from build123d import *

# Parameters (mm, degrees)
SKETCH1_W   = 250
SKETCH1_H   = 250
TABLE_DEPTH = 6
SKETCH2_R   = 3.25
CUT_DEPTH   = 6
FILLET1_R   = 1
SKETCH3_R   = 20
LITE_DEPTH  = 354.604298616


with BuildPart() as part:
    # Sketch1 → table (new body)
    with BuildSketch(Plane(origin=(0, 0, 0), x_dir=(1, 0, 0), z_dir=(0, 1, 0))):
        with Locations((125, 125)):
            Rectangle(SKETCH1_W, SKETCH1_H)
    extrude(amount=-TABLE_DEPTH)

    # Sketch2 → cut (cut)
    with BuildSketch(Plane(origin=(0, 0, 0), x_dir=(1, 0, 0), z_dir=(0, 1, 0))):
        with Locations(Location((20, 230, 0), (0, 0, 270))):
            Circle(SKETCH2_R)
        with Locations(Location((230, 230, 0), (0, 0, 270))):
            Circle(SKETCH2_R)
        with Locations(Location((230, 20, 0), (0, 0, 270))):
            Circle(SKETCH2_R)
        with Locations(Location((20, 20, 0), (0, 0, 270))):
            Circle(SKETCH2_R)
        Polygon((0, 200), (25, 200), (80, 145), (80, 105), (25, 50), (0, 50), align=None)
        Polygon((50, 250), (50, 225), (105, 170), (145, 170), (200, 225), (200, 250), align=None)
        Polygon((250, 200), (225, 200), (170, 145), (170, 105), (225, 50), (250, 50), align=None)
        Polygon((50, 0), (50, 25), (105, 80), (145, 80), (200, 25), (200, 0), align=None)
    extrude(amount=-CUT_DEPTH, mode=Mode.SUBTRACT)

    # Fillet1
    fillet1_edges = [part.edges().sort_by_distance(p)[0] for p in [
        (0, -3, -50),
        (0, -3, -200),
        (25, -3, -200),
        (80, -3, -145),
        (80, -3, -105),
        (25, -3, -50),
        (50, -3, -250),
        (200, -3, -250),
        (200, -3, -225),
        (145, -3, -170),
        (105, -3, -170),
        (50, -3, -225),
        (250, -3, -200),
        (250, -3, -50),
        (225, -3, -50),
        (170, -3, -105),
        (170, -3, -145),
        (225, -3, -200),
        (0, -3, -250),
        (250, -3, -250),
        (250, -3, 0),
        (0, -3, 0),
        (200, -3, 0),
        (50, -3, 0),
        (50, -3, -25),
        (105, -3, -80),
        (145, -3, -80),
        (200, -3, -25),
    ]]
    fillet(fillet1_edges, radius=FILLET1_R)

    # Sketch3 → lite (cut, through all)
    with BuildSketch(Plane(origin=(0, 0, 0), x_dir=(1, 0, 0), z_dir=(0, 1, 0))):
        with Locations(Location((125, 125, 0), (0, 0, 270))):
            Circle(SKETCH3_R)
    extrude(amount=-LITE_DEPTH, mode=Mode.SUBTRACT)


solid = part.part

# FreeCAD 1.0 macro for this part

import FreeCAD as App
import Part
import Sketcher
from FreeCAD import Vector
Q = App.Units.Quantity


def edges_at(feature, points):
    """Names of the edges that pass closest to the given points."""
    edges = feature.Shape.Edges
    near = lambda p: min(range(len(edges)), key=lambda i: edges[i].distToShape(Part.Vertex(*p))[0])
    return sorted({f"Edge{near(p) + 1}" for p in points})

doc = App.newDocument("Part")
body = doc.addObject("PartDesign::Body", "Body")

sketch1 = body.newObject("Sketcher::SketchObject", "Sketch")
sketch1.AttachmentSupport = (doc.getObject("XZ_Plane"), [""])
sketch1.MapMode = "FlatFace"
sketch1.addGeometry([
    Part.LineSegment(Vector(0, -250, 0), Vector(0, 0, 0)),
    Part.LineSegment(Vector(0, 0, 0), Vector(250, 0, 0)),
    Part.LineSegment(Vector(250, 0, 0), Vector(250, -250, 0)),
    Part.LineSegment(Vector(250, -250, 0), Vector(0, -250, 0)),
], False)
sketch1.addConstraint([
    Sketcher.Constraint("Coincident", 0, 2, 1, 1),
    Sketcher.Constraint("Coincident", 1, 2, 2, 1),
    Sketcher.Constraint("Coincident", 2, 2, 3, 1),
    Sketcher.Constraint("Coincident", 3, 2, 0, 1),
    Sketcher.Constraint("Vertical", 0),
    Sketcher.Constraint("Horizontal", 1),
    Sketcher.Constraint("Vertical", 2),
    Sketcher.Constraint("Horizontal", 3),
    Sketcher.Constraint("Coincident", 0, 2, -1, 1),
    Sketcher.Constraint("Equal", 3, 0),
    Sketcher.Constraint("DistanceX", 1, 1, 1, 2, Q("250 mm")),
])
pad1 = body.newObject("PartDesign::Pad", "Pad")
pad1.Profile = sketch1
pad1.Length = 6

sketch2 = body.newObject("Sketcher::SketchObject", "Sketch001")
sketch2.AttachmentSupport = (doc.getObject("XZ_Plane"), [""])
sketch2.MapMode = "FlatFace"
sketch2.addGeometry([
    Part.Circle(Vector(20, -230, 0), Vector(0, 0, 1), 3.2),
    Part.Circle(Vector(230, -230, 0), Vector(0, 0, 1), 3.2),
    Part.Circle(Vector(230, -20, 0), Vector(0, 0, 1), 3.2),
    Part.Circle(Vector(20, -20, 0), Vector(0, 0, 1), 3.2),
    Part.LineSegment(Vector(25, -200, 0), Vector(0, -200, 0)),
    Part.LineSegment(Vector(0, -200, 0), Vector(0, -50, 0)),
    Part.LineSegment(Vector(0, -50, 0), Vector(25, -50, 0)),
    Part.LineSegment(Vector(25, -50, 0), Vector(80, -105, 0)),
    Part.LineSegment(Vector(80, -105, 0), Vector(80, -145, 0)),
    Part.LineSegment(Vector(80, -145, 0), Vector(25, -200, 0)),
    Part.LineSegment(Vector(50, -250, 0), Vector(50, -225, 0)),
    Part.LineSegment(Vector(50, -225, 0), Vector(105, -170, 0)),
    Part.LineSegment(Vector(105, -170, 0), Vector(145, -170, 0)),
    Part.LineSegment(Vector(145, -170, 0), Vector(200, -225, 0)),
    Part.LineSegment(Vector(200, -225, 0), Vector(200, -250, 0)),
    Part.LineSegment(Vector(200, -250, 0), Vector(50, -250, 0)),
    Part.LineSegment(Vector(250, -200, 0), Vector(225, -200, 0)),
    Part.LineSegment(Vector(225, -200, 0), Vector(170, -145, 0)),
    Part.LineSegment(Vector(170, -145, 0), Vector(170, -105, 0)),
    Part.LineSegment(Vector(170, -105, 0), Vector(225, -50, 0)),
    Part.LineSegment(Vector(225, -50, 0), Vector(250, -50, 0)),
    Part.LineSegment(Vector(250, -50, 0), Vector(250, -200, 0)),
    Part.LineSegment(Vector(50, -25, 0), Vector(50, 0, 0)),
    Part.LineSegment(Vector(50, 0, 0), Vector(200, 0, 0)),
    Part.LineSegment(Vector(200, 0, 0), Vector(200, -25, 0)),
    Part.LineSegment(Vector(200, -25, 0), Vector(145, -80, 0)),
    Part.LineSegment(Vector(145, -80, 0), Vector(105, -80, 0)),
    Part.LineSegment(Vector(105, -80, 0), Vector(50, -25, 0)),
], False)
sketch2.addConstraint([
    Sketcher.Constraint("Coincident", 4, 2, 5, 1),
    Sketcher.Constraint("Coincident", 5, 2, 6, 1),
    Sketcher.Constraint("Coincident", 6, 2, 7, 1),
    Sketcher.Constraint("Coincident", 7, 2, 8, 1),
    Sketcher.Constraint("Coincident", 8, 2, 9, 1),
    Sketcher.Constraint("Coincident", 9, 2, 4, 1),
    Sketcher.Constraint("Coincident", 10, 2, 11, 1),
    Sketcher.Constraint("Coincident", 11, 2, 12, 1),
    Sketcher.Constraint("Coincident", 12, 2, 13, 1),
    Sketcher.Constraint("Coincident", 13, 2, 14, 1),
    Sketcher.Constraint("Coincident", 14, 2, 15, 1),
    Sketcher.Constraint("Coincident", 15, 2, 10, 1),
    Sketcher.Constraint("Coincident", 16, 2, 17, 1),
    Sketcher.Constraint("Coincident", 17, 2, 18, 1),
    Sketcher.Constraint("Coincident", 18, 2, 19, 1),
    Sketcher.Constraint("Coincident", 19, 2, 20, 1),
    Sketcher.Constraint("Coincident", 20, 2, 21, 1),
    Sketcher.Constraint("Coincident", 21, 2, 16, 1),
    Sketcher.Constraint("Coincident", 22, 2, 23, 1),
    Sketcher.Constraint("Coincident", 23, 2, 24, 1),
    Sketcher.Constraint("Coincident", 24, 2, 25, 1),
    Sketcher.Constraint("Coincident", 25, 2, 26, 1),
    Sketcher.Constraint("Coincident", 26, 2, 27, 1),
    Sketcher.Constraint("Coincident", 27, 2, 22, 1),
    Sketcher.Constraint("Horizontal", 4),
    Sketcher.Constraint("Vertical", 5),
    Sketcher.Constraint("Horizontal", 6),
    Sketcher.Constraint("Vertical", 8),
    Sketcher.Constraint("Vertical", 10),
    Sketcher.Constraint("Horizontal", 12),
    Sketcher.Constraint("Vertical", 14),
    Sketcher.Constraint("Horizontal", 15),
    Sketcher.Constraint("Horizontal", 16),
    Sketcher.Constraint("Vertical", 18),
    Sketcher.Constraint("Horizontal", 20),
    Sketcher.Constraint("Vertical", 21),
    Sketcher.Constraint("Vertical", 22),
    Sketcher.Constraint("Horizontal", 23),
    Sketcher.Constraint("Vertical", 24),
    Sketcher.Constraint("Horizontal", 26),
    Sketcher.Constraint("Equal", 0, 1),
    Sketcher.Constraint("Equal", 1, 2),
    Sketcher.Constraint("Equal", 2, 3),
    Sketcher.Constraint("PointOnObject", 4, 2, -2),
    Sketcher.Constraint("PointOnObject", 22, 2, -1),
    Sketcher.Constraint("Perpendicular", 7, 9),
    Sketcher.Constraint("Parallel", 9, 11),
    Sketcher.Constraint("Perpendicular", 11, 13),
    Sketcher.Constraint("Parallel", 13, 17),
    Sketcher.Constraint("Perpendicular", 17, 19),
    Sketcher.Constraint("Parallel", 19, 25),
    Sketcher.Constraint("Perpendicular", 25, 27),
    Sketcher.Constraint("Horizontal", 0, 3, 1, 3),
    Sketcher.Constraint("Horizontal", 2, 3, 3, 3),
    Sketcher.Constraint("Horizontal", 10, 2, 13, 2),
    Sketcher.Constraint("Horizontal", 9, 2, 16, 2),
    Sketcher.Constraint("Horizontal", 8, 2, 17, 2),
    Sketcher.Constraint("Horizontal", 7, 2, 18, 2),
    Sketcher.Constraint("Horizontal", 6, 2, 19, 2),
    Sketcher.Constraint("Horizontal", 24, 2, 27, 2),
    Sketcher.Constraint("Vertical", 1, 3, 2, 3),
    Sketcher.Constraint("Vertical", 0, 3, 3, 3),
    Sketcher.Constraint("Vertical", 6, 2, 9, 2),
    Sketcher.Constraint("Vertical", 16, 2, 19, 2),
    Sketcher.Constraint("Vertical", 15, 2, 22, 2),
    Sketcher.Constraint("Vertical", 14, 2, 23, 2),
    Sketcher.Constraint("Vertical", 12, 2, 25, 2),
    Sketcher.Constraint("Equal", 6, 16),
    Sketcher.Constraint("Equal", 23, 5),
    Sketcher.Constraint("Equal", 26, 8),
    Sketcher.Constraint("Equal", 20, 10),
    Sketcher.Constraint("Equal", 14, 22),
    Sketcher.Constraint("Diameter", 0, Q("6.5 mm")),
    Sketcher.Constraint("DistanceX", 4, 2, 4, 1, Q("25 mm")),
    Sketcher.Constraint("DistanceX", 12, 1, 12, 2, Q("40 mm")),
    Sketcher.Constraint("DistanceX", 15, 2, 15, 1, Q("150 mm")),
    Sketcher.Constraint("DistanceX", -1, 1, 0, 3, Q("20 mm")),
    Sketcher.Constraint("DistanceY", 0, 3, -1, 1, Q("230 mm")),
    Sketcher.Constraint("DistanceX", -1, 1, 1, 3, Q("230 mm")),
    Sketcher.Constraint("DistanceY", 2, 3, -1, 1, Q("20 mm")),
    Sketcher.Constraint("DistanceY", 4, 2, -1, 1, Q("200 mm")),
    Sketcher.Constraint("DistanceX", -1, 1, 10, 2, Q("50 mm")),
    Sketcher.Constraint("DistanceY", 10, 2, -1, 1, Q("225 mm")),
    Sketcher.Constraint("DistanceX", -1, 1, 16, 2, Q("225 mm")),
])
pocket1 = body.newObject("PartDesign::Pocket", "Pocket")
pocket1.Profile = sketch2
pocket1.Length = 6
pocket1.Reversed = True
doc.recompute()

fillet = body.newObject("PartDesign::Fillet", "Fillet")
fillet.Base = (pocket1, edges_at(pocket1, [
    (0, -3, -50),
    (0, -3, -200),
    (25, -3, -200),
    (80, -3, -145),
    (80, -3, -105),
    (25, -3, -50),
    (50, -3, -250),
    (200, -3, -250),
    (200, -3, -225),
    (145, -3, -170),
    (105, -3, -170),
    (50, -3, -225),
    (250, -3, -200),
    (250, -3, -50),
    (225, -3, -50),
    (170, -3, -105),
    (170, -3, -145),
    (225, -3, -200),
    (0, -3, -250),
    (250, -3, -250),
    (250, -3, 0),
    (0, -3, 0),
    (200, -3, 0),
    (50, -3, 0),
    (50, -3, -25),
    (105, -3, -80),
    (145, -3, -80),
    (200, -3, -25),
]))
fillet.Radius = 1

sketch3 = body.newObject("Sketcher::SketchObject", "Sketch002")
sketch3.AttachmentSupport = (doc.getObject("XZ_Plane"), [""])
sketch3.MapMode = "FlatFace"
sketch3.addGeometry(Part.Circle(Vector(125, -125, 0), Vector(0, 0, 1), 20), False)
sketch3.addConstraint([
    Sketcher.Constraint("Diameter", 0, Q("40 mm")),
    Sketcher.Constraint("DistanceX", -1, 1, 0, 3, Q("125 mm")),
    Sketcher.Constraint("DistanceY", 0, 3, -1, 1, Q("125 mm")),
])
pocket2 = body.newObject("PartDesign::Pocket", "Pocket001")
pocket2.Profile = sketch3
pocket2.Type = "ThroughAll"
pocket2.Reversed = True

doc.recompute()
